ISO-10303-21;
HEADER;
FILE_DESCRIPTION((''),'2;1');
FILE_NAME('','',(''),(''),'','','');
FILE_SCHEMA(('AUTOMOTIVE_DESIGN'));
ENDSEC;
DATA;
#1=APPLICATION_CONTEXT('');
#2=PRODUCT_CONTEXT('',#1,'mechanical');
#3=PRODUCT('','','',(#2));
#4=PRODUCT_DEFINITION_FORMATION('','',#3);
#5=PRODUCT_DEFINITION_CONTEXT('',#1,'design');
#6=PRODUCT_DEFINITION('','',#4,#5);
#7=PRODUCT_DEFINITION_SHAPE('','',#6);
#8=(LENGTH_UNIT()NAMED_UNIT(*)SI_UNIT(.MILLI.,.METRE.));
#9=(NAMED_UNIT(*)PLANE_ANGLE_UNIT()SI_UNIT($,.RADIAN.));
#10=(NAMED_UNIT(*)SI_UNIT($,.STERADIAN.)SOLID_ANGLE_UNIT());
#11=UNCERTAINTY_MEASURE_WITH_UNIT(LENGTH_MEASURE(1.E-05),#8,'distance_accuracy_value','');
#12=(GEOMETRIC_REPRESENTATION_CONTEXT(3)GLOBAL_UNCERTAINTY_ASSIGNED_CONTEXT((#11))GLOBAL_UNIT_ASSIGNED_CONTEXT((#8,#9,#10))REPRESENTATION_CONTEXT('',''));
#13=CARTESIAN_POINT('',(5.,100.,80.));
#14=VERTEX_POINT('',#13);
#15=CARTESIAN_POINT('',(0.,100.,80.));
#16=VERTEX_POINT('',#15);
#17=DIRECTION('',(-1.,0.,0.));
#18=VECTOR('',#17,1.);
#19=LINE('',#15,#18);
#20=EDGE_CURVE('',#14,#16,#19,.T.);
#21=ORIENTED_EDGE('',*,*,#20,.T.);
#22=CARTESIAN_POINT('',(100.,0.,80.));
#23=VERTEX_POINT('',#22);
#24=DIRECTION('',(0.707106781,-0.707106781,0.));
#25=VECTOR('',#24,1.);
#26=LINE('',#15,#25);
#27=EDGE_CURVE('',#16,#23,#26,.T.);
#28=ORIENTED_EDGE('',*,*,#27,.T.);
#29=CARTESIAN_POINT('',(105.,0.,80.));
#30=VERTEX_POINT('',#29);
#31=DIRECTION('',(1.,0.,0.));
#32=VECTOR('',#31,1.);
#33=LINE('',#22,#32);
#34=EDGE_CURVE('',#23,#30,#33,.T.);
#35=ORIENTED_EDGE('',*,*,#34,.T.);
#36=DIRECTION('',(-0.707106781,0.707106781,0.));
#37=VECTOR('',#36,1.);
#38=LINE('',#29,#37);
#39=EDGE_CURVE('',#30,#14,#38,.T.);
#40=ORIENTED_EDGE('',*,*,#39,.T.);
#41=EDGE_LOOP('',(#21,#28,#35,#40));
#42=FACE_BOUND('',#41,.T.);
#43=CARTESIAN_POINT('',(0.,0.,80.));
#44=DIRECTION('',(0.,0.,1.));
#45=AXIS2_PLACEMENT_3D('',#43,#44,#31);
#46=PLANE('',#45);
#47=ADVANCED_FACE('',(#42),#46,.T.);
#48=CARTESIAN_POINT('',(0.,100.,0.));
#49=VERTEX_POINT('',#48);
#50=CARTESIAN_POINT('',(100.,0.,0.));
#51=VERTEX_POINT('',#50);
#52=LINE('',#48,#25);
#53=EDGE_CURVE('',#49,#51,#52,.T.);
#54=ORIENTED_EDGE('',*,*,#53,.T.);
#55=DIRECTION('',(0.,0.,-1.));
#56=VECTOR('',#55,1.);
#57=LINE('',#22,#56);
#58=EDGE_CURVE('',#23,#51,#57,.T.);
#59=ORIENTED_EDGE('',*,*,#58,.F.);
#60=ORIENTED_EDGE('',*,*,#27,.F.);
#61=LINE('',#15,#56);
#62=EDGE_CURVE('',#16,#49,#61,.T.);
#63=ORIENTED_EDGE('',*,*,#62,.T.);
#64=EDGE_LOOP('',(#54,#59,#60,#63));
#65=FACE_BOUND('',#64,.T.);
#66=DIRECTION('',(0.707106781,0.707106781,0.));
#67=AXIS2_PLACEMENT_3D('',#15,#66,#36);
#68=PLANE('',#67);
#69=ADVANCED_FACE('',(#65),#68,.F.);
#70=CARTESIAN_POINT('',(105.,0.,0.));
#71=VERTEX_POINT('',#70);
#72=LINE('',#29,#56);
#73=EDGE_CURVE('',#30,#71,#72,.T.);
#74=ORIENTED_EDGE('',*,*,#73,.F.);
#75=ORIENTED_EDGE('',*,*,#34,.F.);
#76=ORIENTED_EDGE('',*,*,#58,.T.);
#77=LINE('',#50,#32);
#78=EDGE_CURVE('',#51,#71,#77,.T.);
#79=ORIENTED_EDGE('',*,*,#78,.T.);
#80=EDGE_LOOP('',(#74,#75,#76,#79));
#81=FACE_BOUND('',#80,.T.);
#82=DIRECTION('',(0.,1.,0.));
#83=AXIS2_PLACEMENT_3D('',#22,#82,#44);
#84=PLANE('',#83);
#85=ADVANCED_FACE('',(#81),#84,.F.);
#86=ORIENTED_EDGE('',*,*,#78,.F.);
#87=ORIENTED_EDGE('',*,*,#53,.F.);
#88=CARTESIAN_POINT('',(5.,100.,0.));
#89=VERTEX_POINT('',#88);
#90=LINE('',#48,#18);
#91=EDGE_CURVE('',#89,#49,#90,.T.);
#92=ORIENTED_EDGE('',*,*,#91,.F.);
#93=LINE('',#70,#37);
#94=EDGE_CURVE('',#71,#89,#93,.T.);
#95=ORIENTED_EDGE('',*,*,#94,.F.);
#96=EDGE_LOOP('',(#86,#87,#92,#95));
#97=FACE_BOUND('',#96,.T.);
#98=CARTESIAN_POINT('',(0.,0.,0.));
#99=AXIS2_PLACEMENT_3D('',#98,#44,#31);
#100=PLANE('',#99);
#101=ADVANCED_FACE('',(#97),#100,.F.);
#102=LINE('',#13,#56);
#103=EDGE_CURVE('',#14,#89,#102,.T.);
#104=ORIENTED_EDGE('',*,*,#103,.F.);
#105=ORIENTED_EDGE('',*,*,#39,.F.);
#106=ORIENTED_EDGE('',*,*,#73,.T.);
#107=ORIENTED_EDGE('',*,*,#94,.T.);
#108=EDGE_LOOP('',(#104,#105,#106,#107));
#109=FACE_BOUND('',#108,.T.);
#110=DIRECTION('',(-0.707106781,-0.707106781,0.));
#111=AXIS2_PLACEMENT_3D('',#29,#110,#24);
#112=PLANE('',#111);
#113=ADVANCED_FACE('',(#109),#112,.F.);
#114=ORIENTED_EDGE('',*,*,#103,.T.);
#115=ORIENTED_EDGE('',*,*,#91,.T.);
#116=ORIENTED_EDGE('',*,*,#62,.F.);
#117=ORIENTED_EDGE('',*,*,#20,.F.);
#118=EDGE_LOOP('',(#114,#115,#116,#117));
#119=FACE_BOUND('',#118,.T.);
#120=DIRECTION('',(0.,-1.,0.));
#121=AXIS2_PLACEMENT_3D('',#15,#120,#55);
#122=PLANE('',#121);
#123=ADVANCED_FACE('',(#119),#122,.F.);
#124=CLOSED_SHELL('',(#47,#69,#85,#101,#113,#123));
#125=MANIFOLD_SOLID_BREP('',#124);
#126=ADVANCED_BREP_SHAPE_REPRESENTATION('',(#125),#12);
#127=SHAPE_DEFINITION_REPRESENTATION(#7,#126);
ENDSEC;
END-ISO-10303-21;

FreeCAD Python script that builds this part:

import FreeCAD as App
import Part
import Sketcher
Q = App.Units.Quantity

doc = App.newDocument("Part")
body = doc.addObject("PartDesign::Body", "Body")

# Sketch on XY plane
sketch1 = body.newObject("Sketcher::SketchObject", "Sketch")
sketch1.AttachmentSupport = (doc.getObject("XY_Plane"), [""])
sketch1.MapMode = "FlatFace"
sketch1.addGeometry([
    Part.LineSegment(App.Vector(0, 100, 0), App.Vector(100, 0, 0)),
    Part.LineSegment(App.Vector(100, 0, 0), App.Vector(105, 0, 0)),
    Part.LineSegment(App.Vector(105, 0, 0), App.Vector(5, 100, 0)),
    Part.LineSegment(App.Vector(5, 100, 0), App.Vector(0, 100, 0)),
], False)
sketch1.addConstraint([
    Sketcher.Constraint("Coincident", 0, 2, 1, 1),
    Sketcher.Constraint("Coincident", 1, 2, 2, 1),
    Sketcher.Constraint("Coincident", 2, 2, 3, 1),
    Sketcher.Constraint("Coincident", 3, 2, 0, 1),
    Sketcher.Constraint("Horizontal", 1),
    Sketcher.Constraint("Horizontal", 3),
    Sketcher.Constraint("PointOnObject", 0, 2, -1),
    Sketcher.Constraint("PointOnObject", 3, 2, -2),
    Sketcher.Constraint("Parallel", 0, 2),
    Sketcher.Constraint("DistanceX", 1, 1, 1, 2, 5.0),
    Sketcher.Constraint("Angle", 0, Q("-45 deg")),
    Sketcher.Constraint("DistanceX", -1, 1, 0, 2, 100.0),
])
pad1 = body.newObject("PartDesign::Pad", "Pad")
pad1.Profile = sketch1
pad1.Length = 80

doc.recompute()
